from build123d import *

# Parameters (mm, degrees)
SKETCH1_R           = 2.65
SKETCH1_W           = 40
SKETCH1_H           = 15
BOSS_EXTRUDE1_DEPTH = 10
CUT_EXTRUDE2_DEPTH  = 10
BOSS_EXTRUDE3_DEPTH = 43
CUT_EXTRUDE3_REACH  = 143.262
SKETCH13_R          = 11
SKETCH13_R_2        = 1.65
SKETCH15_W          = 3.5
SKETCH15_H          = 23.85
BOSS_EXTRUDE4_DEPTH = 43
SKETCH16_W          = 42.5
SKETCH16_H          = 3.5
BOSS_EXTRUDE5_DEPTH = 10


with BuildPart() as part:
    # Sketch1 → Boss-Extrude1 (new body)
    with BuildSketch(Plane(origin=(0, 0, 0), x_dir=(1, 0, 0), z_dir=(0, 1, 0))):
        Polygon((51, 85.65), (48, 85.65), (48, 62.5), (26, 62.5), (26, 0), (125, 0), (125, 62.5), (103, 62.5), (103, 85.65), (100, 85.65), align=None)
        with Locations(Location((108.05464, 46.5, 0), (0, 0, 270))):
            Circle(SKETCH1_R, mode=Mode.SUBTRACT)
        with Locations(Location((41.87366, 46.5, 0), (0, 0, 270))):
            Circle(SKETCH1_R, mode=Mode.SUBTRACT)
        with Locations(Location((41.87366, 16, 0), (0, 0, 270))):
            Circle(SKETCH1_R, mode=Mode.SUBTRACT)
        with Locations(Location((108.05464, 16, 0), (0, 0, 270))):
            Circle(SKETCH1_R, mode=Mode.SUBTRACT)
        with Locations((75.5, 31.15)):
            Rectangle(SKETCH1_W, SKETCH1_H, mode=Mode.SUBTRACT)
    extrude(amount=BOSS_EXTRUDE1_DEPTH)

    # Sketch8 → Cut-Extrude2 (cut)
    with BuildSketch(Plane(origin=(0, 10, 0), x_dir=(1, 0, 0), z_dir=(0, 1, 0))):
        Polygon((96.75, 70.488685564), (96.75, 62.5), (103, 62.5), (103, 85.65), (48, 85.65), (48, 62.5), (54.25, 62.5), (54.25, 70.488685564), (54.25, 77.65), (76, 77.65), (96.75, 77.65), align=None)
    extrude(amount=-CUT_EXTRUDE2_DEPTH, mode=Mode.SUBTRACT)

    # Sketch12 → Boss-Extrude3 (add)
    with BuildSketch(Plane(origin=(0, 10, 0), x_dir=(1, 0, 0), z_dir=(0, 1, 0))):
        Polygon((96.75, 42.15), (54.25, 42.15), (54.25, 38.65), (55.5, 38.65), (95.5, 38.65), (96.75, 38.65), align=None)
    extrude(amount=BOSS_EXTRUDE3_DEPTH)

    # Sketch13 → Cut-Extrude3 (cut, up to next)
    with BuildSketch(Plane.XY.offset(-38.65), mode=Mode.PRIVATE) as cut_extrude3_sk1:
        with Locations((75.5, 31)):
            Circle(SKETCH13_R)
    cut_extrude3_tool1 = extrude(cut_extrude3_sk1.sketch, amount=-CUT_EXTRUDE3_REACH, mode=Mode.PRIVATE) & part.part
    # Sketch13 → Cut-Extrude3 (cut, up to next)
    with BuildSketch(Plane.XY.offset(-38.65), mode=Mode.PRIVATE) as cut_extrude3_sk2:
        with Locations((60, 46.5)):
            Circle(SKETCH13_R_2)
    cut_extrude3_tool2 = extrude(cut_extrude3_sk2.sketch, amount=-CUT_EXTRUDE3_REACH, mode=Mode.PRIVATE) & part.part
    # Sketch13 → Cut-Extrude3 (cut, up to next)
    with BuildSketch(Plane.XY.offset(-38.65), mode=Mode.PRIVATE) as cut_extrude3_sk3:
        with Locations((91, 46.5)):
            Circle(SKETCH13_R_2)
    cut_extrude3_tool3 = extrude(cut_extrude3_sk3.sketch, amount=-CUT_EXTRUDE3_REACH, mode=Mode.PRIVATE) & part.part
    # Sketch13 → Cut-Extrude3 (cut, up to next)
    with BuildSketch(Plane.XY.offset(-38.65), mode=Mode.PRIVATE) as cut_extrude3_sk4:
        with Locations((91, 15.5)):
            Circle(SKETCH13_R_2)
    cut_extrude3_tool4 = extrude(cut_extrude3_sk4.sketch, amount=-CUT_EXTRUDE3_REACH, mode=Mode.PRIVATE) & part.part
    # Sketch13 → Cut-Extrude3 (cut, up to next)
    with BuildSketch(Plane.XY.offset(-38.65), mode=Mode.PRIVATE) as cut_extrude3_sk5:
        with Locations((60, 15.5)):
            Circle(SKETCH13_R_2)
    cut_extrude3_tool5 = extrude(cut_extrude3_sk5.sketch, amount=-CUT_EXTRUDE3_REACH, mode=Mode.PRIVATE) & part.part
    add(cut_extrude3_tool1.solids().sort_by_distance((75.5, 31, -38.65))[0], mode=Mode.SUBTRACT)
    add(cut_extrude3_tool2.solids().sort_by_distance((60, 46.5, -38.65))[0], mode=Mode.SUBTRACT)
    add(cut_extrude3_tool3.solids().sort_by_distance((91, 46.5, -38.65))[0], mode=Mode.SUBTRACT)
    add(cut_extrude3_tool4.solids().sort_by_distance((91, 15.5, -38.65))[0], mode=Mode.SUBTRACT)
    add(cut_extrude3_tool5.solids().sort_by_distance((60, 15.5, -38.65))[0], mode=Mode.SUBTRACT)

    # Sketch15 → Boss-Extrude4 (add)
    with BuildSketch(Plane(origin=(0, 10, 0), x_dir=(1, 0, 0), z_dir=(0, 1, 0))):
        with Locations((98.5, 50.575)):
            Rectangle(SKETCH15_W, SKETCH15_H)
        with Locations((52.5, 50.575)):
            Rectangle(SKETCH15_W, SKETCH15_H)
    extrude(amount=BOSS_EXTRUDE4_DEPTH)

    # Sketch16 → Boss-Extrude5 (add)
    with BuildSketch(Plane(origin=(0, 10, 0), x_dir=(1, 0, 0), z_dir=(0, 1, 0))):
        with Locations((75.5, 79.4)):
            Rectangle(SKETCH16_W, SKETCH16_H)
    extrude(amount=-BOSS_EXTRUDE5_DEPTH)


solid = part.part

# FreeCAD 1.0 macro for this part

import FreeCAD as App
import Part
import Sketcher
from FreeCAD import Vector
Q = App.Units.Quantity

doc = App.newDocument("Part")
params = doc.addObject("Spreadsheet::Sheet", "Params")
for row, (alias, value) in enumerate([
    ("sketch1_diameter", "5.3 mm"),
    ("sketch1_width", "22 mm"),
    ("sketch1_width2", "99 mm"),
    ("sketch1_width3", "40 mm"),
    ("sketch1_height", "15 mm"),
    ("pad1_length", "10 mm"),
    ("sketch2_width", "55 mm"),
    ("sketch2_width2", "42.5 mm"),
    ("sketch2_height", "23.15 mm"),
    ("pocket1_length", "10 mm"),
    ("sketch3_width", "42.5 mm"),
    ("sketch3_height", "3.5 mm"),
    ("pad2_length", "43 mm"),
    ("sketch4_diameter", "22 mm"),
    ("sketch5_diameter", "3.3 mm"),
    ("sketch6_diameter", "3.3 mm"),
    ("sketch7_diameter", "3.3 mm"),
    ("sketch8_diameter", "3.3 mm"),
    ("sketch9_width", "3.5 mm"),
    ("sketch9_height", "23.85 mm"),
    ("pad3_length", "43 mm"),
    ("sketch10_width", "42.5 mm"),
    ("sketch10_height", "3.5 mm"),
    ("pad4_length", "10 mm"),
], start=1):
    params.set(f"A{row}", alias)
    params.set(f"B{row}", "=" + value)
    params.setAlias(f"B{row}", alias)

body = doc.addObject("PartDesign::Body", "Body")

# Sketch on XZ plane
sketch1 = body.newObject("Sketcher::SketchObject", "Sketch")
sketch1.AttachmentSupport = (doc.getObject("XZ_Plane"), [""])
sketch1.MapMode = "FlatFace"
sketch1.addGeometry([
    Part.LineSegment(Vector(48, -85.65, 0), Vector(48, -62.5, 0)),  # 0
    Part.LineSegment(Vector(48, -62.5, 0), Vector(26, -62.5, 0)),  # 1
    Part.LineSegment(Vector(26, -62.5, 0), Vector(26, 0, 0)),  # 2
    Part.LineSegment(Vector(26, 0, 0), Vector(125, 0, 0)),  # 3
    Part.LineSegment(Vector(125, 0, 0), Vector(125, -62.5, 0)),  # 4
    Part.LineSegment(Vector(125, -62.5, 0), Vector(103, -62.5, 0)),  # 5
    Part.LineSegment(Vector(103, -62.5, 0), Vector(103, -85.65, 0)),  # 6
    Part.LineSegment(Vector(103, -85.65, 0), Vector(48, -85.65, 0)),  # 7
    Part.Circle(Vector(41.87366, -16, 0), Vector(0, 0, 1), 2.65),  # 8
    Part.Circle(Vector(108.05464, -16, 0), Vector(0, 0, 1), 2.65),  # 9
    Part.LineSegment(Vector(95.5, -23.65, 0), Vector(55.5, -23.65, 0)),  # 10
    Part.LineSegment(Vector(55.5, -23.65, 0), Vector(55.5, -38.65, 0)),  # 11
    Part.LineSegment(Vector(55.5, -38.65, 0), Vector(95.5, -38.65, 0)),  # 12
    Part.LineSegment(Vector(95.5, -38.65, 0), Vector(95.5, -23.65, 0)),  # 13
    Part.Circle(Vector(41.87366, -46.5, 0), Vector(0, 0, 1), 2.65),  # 14
    Part.Circle(Vector(108.05464, -46.5, 0), Vector(0, 0, 1), 2.65),  # 15
], False)
sketch1.addConstraint([
    Sketcher.Constraint("Coincident", 0, 2, 1, 1),
    Sketcher.Constraint("Coincident", 1, 2, 2, 1),
    Sketcher.Constraint("Coincident", 2, 2, 3, 1),
    Sketcher.Constraint("Coincident", 3, 2, 4, 1),
    Sketcher.Constraint("Coincident", 4, 2, 5, 1),
    Sketcher.Constraint("Coincident", 5, 2, 6, 1),
    Sketcher.Constraint("Coincident", 6, 2, 7, 1),
    Sketcher.Constraint("Coincident", 7, 2, 0, 1),
    Sketcher.Constraint("Coincident", 10, 2, 11, 1),
    Sketcher.Constraint("Coincident", 11, 2, 12, 1),
    Sketcher.Constraint("Coincident", 12, 2, 13, 1),
    Sketcher.Constraint("Coincident", 13, 2, 10, 1),
    Sketcher.Constraint("Vertical", 0),
    Sketcher.Constraint("Horizontal", 1),
    Sketcher.Constraint("Vertical", 2),
    Sketcher.Constraint("Horizontal", 3),
    Sketcher.Constraint("Vertical", 4),
    Sketcher.Constraint("Horizontal", 5),
    Sketcher.Constraint("Vertical", 6),
    Sketcher.Constraint("Horizontal", 7),
    Sketcher.Constraint("Horizontal", 10),
    Sketcher.Constraint("Vertical", 11),
    Sketcher.Constraint("Horizontal", 12),
    Sketcher.Constraint("Vertical", 13),
    Sketcher.Constraint("Equal", 8, 9),
    Sketcher.Constraint("Equal", 9, 14),
    Sketcher.Constraint("Equal", 14, 15),
    Sketcher.Constraint("PointOnObject", 2, 2, -1),
    Sketcher.Constraint("Horizontal", 8, 3, 9, 3),
    Sketcher.Constraint("Horizontal", 14, 3, 15, 3),
    Sketcher.Constraint("Horizontal", 1, 2, 4, 2),
    Sketcher.Constraint("Vertical", 8, 3, 14, 3),
    Sketcher.Constraint("Vertical", 9, 3, 15, 3),
    Sketcher.Constraint("Equal", 1, 5),
    Sketcher.Constraint("Diameter", 8, Q("5.3 mm")),
    Sketcher.Constraint("DistanceX", 1, 2, 1, 1, Q("22 mm")),
    Sketcher.Constraint("DistanceX", 3, 1, 3, 2, Q("99 mm")),
    Sketcher.Constraint("DistanceX", 10, 2, 10, 1, Q("40 mm")),
    Sketcher.Constraint("DistanceY", 11, 2, 11, 1, Q("15 mm")),
    Sketcher.Constraint("DistanceY", 2, 1, 2, 2, Q("62.5 mm")),
    Sketcher.Constraint("DistanceY", 8, 3, -1, 1, Q("16 mm")),
    Sketcher.Constraint("DistanceX", -1, 1, 0, 2, Q("48 mm")),
    Sketcher.Constraint("DistanceY", 0, 2, 14, 3, Q("16 mm")),
    Sketcher.Constraint("DistanceY", 0, 1, 0, 2, Q("23.15 mm")),
    Sketcher.Constraint("DistanceX", -1, 1, 10, 2, Q("55.5 mm")),
    Sketcher.Constraint("DistanceY", 10, 2, -1, 1, Q("23.65 mm")),
    Sketcher.Constraint("DistanceX", -1, 1, 8, 3, Q("41.87366 mm")),
    Sketcher.Constraint("DistanceX", -1, 1, 9, 3, Q("108.05464 mm")),
])
sketch1.setExpression("Constraints[34]", "Params.sketch1_diameter")
sketch1.setExpression("Constraints[35]", "Params.sketch1_width")
sketch1.setExpression("Constraints[36]", "Params.sketch1_width2")
sketch1.setExpression("Constraints[37]", "Params.sketch1_width3")
sketch1.setExpression("Constraints[38]", "Params.sketch1_height")
pad1 = body.newObject("PartDesign::Pad", "Pad")
pad1.Profile = sketch1
pad1.setExpression("Length", "Params.pad1_length")
pad1.Reversed = True

# Sketch on XZ plane
sketch2 = body.newObject("Sketcher::SketchObject", "Sketch001")
sketch2.AttachmentSupport = (doc.getObject("XZ_Plane"), [""])
sketch2.MapMode = "FlatFace"
sketch2.AttachmentOffset = App.Placement(Vector(0, 0, -10), App.Rotation())
sketch2.addGeometry([
    Part.LineSegment(Vector(96.75, -62.5, 0), Vector(103, -62.5, 0)),  # 0
    Part.LineSegment(Vector(103, -62.5, 0), Vector(103, -85.65, 0)),  # 1
    Part.LineSegment(Vector(103, -85.65, 0), Vector(48, -85.65, 0)),  # 2
    Part.LineSegment(Vector(48, -85.65, 0), Vector(48, -62.5, 0)),  # 3
    Part.LineSegment(Vector(48, -62.5, 0), Vector(54.25, -62.5, 0)),  # 4
    Part.LineSegment(Vector(54.25, -62.5, 0), Vector(54.25, -77.65, 0)),  # 5
    Part.LineSegment(Vector(54.25, -77.65, 0), Vector(96.75, -77.65, 0)),  # 6
    Part.LineSegment(Vector(96.75, -77.65, 0), Vector(96.75, -62.5, 0)),  # 7
], False)
sketch2.addConstraint([
    Sketcher.Constraint("Coincident", 0, 2, 1, 1),
    Sketcher.Constraint("Coincident", 1, 2, 2, 1),
    Sketcher.Constraint("Coincident", 2, 2, 3, 1),
    Sketcher.Constraint("Coincident", 3, 2, 4, 1),
    Sketcher.Constraint("Coincident", 4, 2, 5, 1),
    Sketcher.Constraint("Coincident", 5, 2, 6, 1),
    Sketcher.Constraint("Coincident", 6, 2, 7, 1),
    Sketcher.Constraint("Coincident", 7, 2, 0, 1),
    Sketcher.Constraint("Horizontal", 0),
    Sketcher.Constraint("Vertical", 1),
    Sketcher.Constraint("Horizontal", 2),
    Sketcher.Constraint("Vertical", 3),
    Sketcher.Constraint("Horizontal", 4),
    Sketcher.Constraint("Vertical", 5),
    Sketcher.Constraint("Horizontal", 6),
    Sketcher.Constraint("Vertical", 7),
    Sketcher.Constraint("Horizontal", 0, 2, 3, 2),
    Sketcher.Constraint("Equal", 0, 4),
    Sketcher.Constraint("DistanceX", 2, 2, 2, 1, Q("55 mm")),
    Sketcher.Constraint("DistanceX", 6, 1, 6, 2, Q("42.5 mm")),
    Sketcher.Constraint("DistanceX", -1, 1, 0, 2, Q("103 mm")),
    Sketcher.Constraint("DistanceY", 2, 2, 5, 2, Q("8 mm")),
    Sketcher.Constraint("DistanceY", 1, 2, 1, 1, Q("23.15 mm")),
    Sketcher.Constraint("DistanceY", 0, 2, -1, 1, Q("62.5 mm")),
])
sketch2.setExpression("Constraints[18]", "Params.sketch2_width")
sketch2.setExpression("Constraints[19]", "Params.sketch2_width2")
sketch2.setExpression("Constraints[22]", "Params.sketch2_height")
pocket1 = body.newObject("PartDesign::Pocket", "Pocket")
pocket1.Profile = sketch2
pocket1.setExpression("Length", "Params.pocket1_length")
pocket1.Reversed = True

# Sketch on XZ plane
sketch3 = body.newObject("Sketcher::SketchObject", "Sketch002")
sketch3.AttachmentSupport = (doc.getObject("XZ_Plane"), [""])
sketch3.MapMode = "FlatFace"
sketch3.AttachmentOffset = App.Placement(Vector(0, 0, -10), App.Rotation())
sketch3.addGeometry([
    Part.LineSegment(Vector(96.75, -42.15, 0), Vector(54.25, -42.15, 0)),
    Part.LineSegment(Vector(54.25, -42.15, 0), Vector(54.25, -38.65, 0)),
    Part.LineSegment(Vector(54.25, -38.65, 0), Vector(96.75, -38.65, 0)),
    Part.LineSegment(Vector(96.75, -38.65, 0), Vector(96.75, -42.15, 0)),
], False)
sketch3.addConstraint([
    Sketcher.Constraint("Coincident", 0, 2, 1, 1),
    Sketcher.Constraint("Coincident", 1, 2, 2, 1),
    Sketcher.Constraint("Coincident", 2, 2, 3, 1),
    Sketcher.Constraint("Coincident", 3, 2, 0, 1),
    Sketcher.Constraint("Horizontal", 0),
    Sketcher.Constraint("Vertical", 1),
    Sketcher.Constraint("Horizontal", 2),
    Sketcher.Constraint("Vertical", 3),
    Sketcher.Constraint("DistanceX", 0, 2, 0, 1, Q("42.5 mm")),
    Sketcher.Constraint("DistanceY", 1, 1, 1, 2, Q("3.5 mm")),
    Sketcher.Constraint("DistanceX", -1, 1, 0, 2, Q("54.25 mm")),
    Sketcher.Constraint("DistanceY", 0, 2, -1, 1, Q("42.15 mm")),
])
sketch3.setExpression("Constraints[8]", "Params.sketch3_width")
sketch3.setExpression("Constraints[9]", "Params.sketch3_height")
pad2 = body.newObject("PartDesign::Pad", "Pad001")
pad2.Profile = sketch3
pad2.setExpression("Length", "Params.pad2_length")
pad2.Reversed = True

# Sketch on XY plane
sketch4 = body.newObject("Sketcher::SketchObject", "Sketch003")
sketch4.AttachmentSupport = (doc.getObject("XY_Plane"), [""])
sketch4.MapMode = "FlatFace"
sketch4.AttachmentOffset = App.Placement(Vector(0, 0, -38.65), App.Rotation())
sketch4.addGeometry(Part.Circle(Vector(75.5, 31, 0), Vector(0, 0, 1), 11), False)
sketch4.addConstraint([
    Sketcher.Constraint("Diameter", 0, Q("22 mm")),
    Sketcher.Constraint("DistanceY", -1, 1, 0, 3, Q("31 mm")),
    Sketcher.Constraint("DistanceX", -1, 1, 0, 3, Q("75.5 mm")),
])
sketch4.setExpression("Constraints[0]", "Params.sketch4_diameter")
pocket2 = body.newObject("PartDesign::Pocket", "Pocket001")
pocket2.Profile = sketch4
pocket2.Type = "UpToFirst"

# Sketch on XY plane
sketch5 = body.newObject("Sketcher::SketchObject", "Sketch004")
sketch5.AttachmentSupport = (doc.getObject("XY_Plane"), [""])
sketch5.MapMode = "FlatFace"
sketch5.AttachmentOffset = App.Placement(Vector(0, 0, -38.65), App.Rotation())
sketch5.addGeometry(Part.Circle(Vector(60, 46.5, 0), Vector(0, 0, 1), 1.65), False)
sketch5.addConstraint([
    Sketcher.Constraint("Diameter", 0, Q("3.3 mm")),
    Sketcher.Constraint("DistanceX", -1, 1, 0, 3, Q("60 mm")),
    Sketcher.Constraint("DistanceY", -1, 1, 0, 3, Q("46.5 mm")),
])
sketch5.setExpression("Constraints[0]", "Params.sketch5_diameter")
pocket3 = body.newObject("PartDesign::Pocket", "Pocket002")
pocket3.Profile = sketch5
pocket3.Type = "UpToFirst"

# Sketch on XY plane
sketch6 = body.newObject("Sketcher::SketchObject", "Sketch005")
sketch6.AttachmentSupport = (doc.getObject("XY_Plane"), [""])
sketch6.MapMode = "FlatFace"
sketch6.AttachmentOffset = App.Placement(Vector(0, 0, -38.65), App.Rotation())
sketch6.addGeometry(Part.Circle(Vector(91, 46.5, 0), Vector(0, 0, 1), 1.65), False)
sketch6.addConstraint([
    Sketcher.Constraint("Diameter", 0, Q("3.3 mm")),
    Sketcher.Constraint("DistanceX", -1, 1, 0, 3, Q("91 mm")),
    Sketcher.Constraint("DistanceY", -1, 1, 0, 3, Q("46.5 mm")),
])
sketch6.setExpression("Constraints[0]", "Params.sketch6_diameter")
pocket4 = body.newObject("PartDesign::Pocket", "Pocket003")
pocket4.Profile = sketch6
pocket4.Type = "UpToFirst"

# Sketch on XY plane
sketch7 = body.newObject("Sketcher::SketchObject", "Sketch006")
sketch7.AttachmentSupport = (doc.getObject("XY_Plane"), [""])
sketch7.MapMode = "FlatFace"
sketch7.AttachmentOffset = App.Placement(Vector(0, 0, -38.65), App.Rotation())
sketch7.addGeometry(Part.Circle(Vector(91, 15.5, 0), Vector(0, 0, 1), 1.65), False)
sketch7.addConstraint([
    Sketcher.Constraint("Diameter", 0, Q("3.3 mm")),
    Sketcher.Constraint("DistanceX", -1, 1, 0, 3, Q("91 mm")),
    Sketcher.Constraint("DistanceY", -1, 1, 0, 3, Q("15.5 mm")),
])
sketch7.setExpression("Constraints[0]", "Params.sketch7_diameter")
pocket5 = body.newObject("PartDesign::Pocket", "Pocket004")
pocket5.Profile = sketch7
pocket5.Type = "UpToFirst"

# Sketch on XY plane
sketch8 = body.newObject("Sketcher::SketchObject", "Sketch007")
sketch8.AttachmentSupport = (doc.getObject("XY_Plane"), [""])
sketch8.MapMode = "FlatFace"
sketch8.AttachmentOffset = App.Placement(Vector(0, 0, -38.65), App.Rotation())
sketch8.addGeometry(Part.Circle(Vector(60, 15.5, 0), Vector(0, 0, 1), 1.65), False)
sketch8.addConstraint([
    Sketcher.Constraint("Diameter", 0, Q("3.3 mm")),
    Sketcher.Constraint("DistanceX", -1, 1, 0, 3, Q("60 mm")),
    Sketcher.Constraint("DistanceY", -1, 1, 0, 3, Q("15.5 mm")),
])
sketch8.setExpression("Constraints[0]", "Params.sketch8_diameter")
pocket6 = body.newObject("PartDesign::Pocket", "Pocket005")
pocket6.Profile = sketch8
pocket6.Type = "UpToFirst"

# Sketch on XZ plane
sketch9 = body.newObject("Sketcher::SketchObject", "Sketch008")
sketch9.AttachmentSupport = (doc.getObject("XZ_Plane"), [""])
sketch9.MapMode = "FlatFace"
sketch9.AttachmentOffset = App.Placement(Vector(0, 0, -10), App.Rotation())
sketch9.addGeometry([
    Part.LineSegment(Vector(96.75, -62.5, 0), Vector(96.75, -38.65, 0)),  # 0
    Part.LineSegment(Vector(96.75, -38.65, 0), Vector(100.25, -38.65, 0)),  # 1
    Part.LineSegment(Vector(100.25, -38.65, 0), Vector(100.25, -62.5, 0)),  # 2
    Part.LineSegment(Vector(100.25, -62.5, 0), Vector(96.75, -62.5, 0)),  # 3
    Part.LineSegment(Vector(50.75, -62.5, 0), Vector(50.75, -38.65, 0)),  # 4
    Part.LineSegment(Vector(50.75, -38.65, 0), Vector(54.25, -38.65, 0)),  # 5
    Part.LineSegment(Vector(54.25, -38.65, 0), Vector(54.25, -62.5, 0)),  # 6
    Part.LineSegment(Vector(54.25, -62.5, 0), Vector(50.75, -62.5, 0)),  # 7
], False)
sketch9.addConstraint([
    Sketcher.Constraint("Coincident", 0, 2, 1, 1),
    Sketcher.Constraint("Coincident", 1, 2, 2, 1),
    Sketcher.Constraint("Coincident", 2, 2, 3, 1),
    Sketcher.Constraint("Coincident", 3, 2, 0, 1),
    Sketcher.Constraint("Coincident", 4, 2, 5, 1),
    Sketcher.Constraint("Coincident", 5, 2, 6, 1),
    Sketcher.Constraint("Coincident", 6, 2, 7, 1),
    Sketcher.Constraint("Coincident", 7, 2, 4, 1),
    Sketcher.Constraint("Vertical", 0),
    Sketcher.Constraint("Horizontal", 1),
    Sketcher.Constraint("Vertical", 2),
    Sketcher.Constraint("Horizontal", 3),
    Sketcher.Constraint("Vertical", 4),
    Sketcher.Constraint("Horizontal", 5),
    Sketcher.Constraint("Vertical", 6),
    Sketcher.Constraint("Horizontal", 7),
    Sketcher.Constraint("Horizontal", 1, 2, 4, 2),
    Sketcher.Constraint("Horizontal", 3, 2, 6, 2),
    Sketcher.Constraint("Equal", 3, 5),
    Sketcher.Constraint("DistanceX", 1, 1, 1, 2, Q("3.5 mm")),
    Sketcher.Constraint("DistanceX", 4, 2, 0, 2, Q("46 mm")),
    Sketcher.Constraint("DistanceY", 0, 1, 0, 2, Q("23.85 mm")),
    Sketcher.Constraint("DistanceY", 2, 2, -1, 1, Q("62.5 mm")),
    Sketcher.Constraint("DistanceX", -1, 1, 0, 2, Q("96.75 mm")),
])
sketch9.setExpression("Constraints[19]", "Params.sketch9_width")
sketch9.setExpression("Constraints[21]", "Params.sketch9_height")
pad3 = body.newObject("PartDesign::Pad", "Pad002")
pad3.Profile = sketch9
pad3.setExpression("Length", "Params.pad3_length")
pad3.Reversed = True

# Sketch on XZ plane
sketch10 = body.newObject("Sketcher::SketchObject", "Sketch009")
sketch10.AttachmentSupport = (doc.getObject("XZ_Plane"), [""])
sketch10.MapMode = "FlatFace"
sketch10.AttachmentOffset = App.Placement(Vector(0, 0, -10), App.Rotation())
sketch10.addGeometry([
    Part.LineSegment(Vector(54.25, -81.15, 0), Vector(54.25, -77.65, 0)),
    Part.LineSegment(Vector(54.25, -77.65, 0), Vector(96.75, -77.65, 0)),
    Part.LineSegment(Vector(96.75, -77.65, 0), Vector(96.75, -81.15, 0)),
    Part.LineSegment(Vector(96.75, -81.15, 0), Vector(54.25, -81.15, 0)),
], False)
sketch10.addConstraint([
    Sketcher.Constraint("Coincident", 0, 2, 1, 1),
    Sketcher.Constraint("Coincident", 1, 2, 2, 1),
    Sketcher.Constraint("Coincident", 2, 2, 3, 1),
    Sketcher.Constraint("Coincident", 3, 2, 0, 1),
    Sketcher.Constraint("Vertical", 0),
    Sketcher.Constraint("Horizontal", 1),
    Sketcher.Constraint("Vertical", 2),
    Sketcher.Constraint("Horizontal", 3),
    Sketcher.Constraint("DistanceX", 1, 1, 1, 2, Q("42.5 mm")),
    Sketcher.Constraint("DistanceY", 0, 1, 0, 2, Q("3.5 mm")),
    Sketcher.Constraint("DistanceX", -1, 1, 0, 2, Q("54.25 mm")),
    Sketcher.Constraint("DistanceY", 0, 2, -1, 1, Q("77.65 mm")),
])
sketch10.setExpression("Constraints[8]", "Params.sketch10_width")
sketch10.setExpression("Constraints[9]", "Params.sketch10_height")
pad4 = body.newObject("PartDesign::Pad", "Pad003")
pad4.Profile = sketch10
pad4.setExpression("Length", "Params.pad4_length")

doc.recompute()
